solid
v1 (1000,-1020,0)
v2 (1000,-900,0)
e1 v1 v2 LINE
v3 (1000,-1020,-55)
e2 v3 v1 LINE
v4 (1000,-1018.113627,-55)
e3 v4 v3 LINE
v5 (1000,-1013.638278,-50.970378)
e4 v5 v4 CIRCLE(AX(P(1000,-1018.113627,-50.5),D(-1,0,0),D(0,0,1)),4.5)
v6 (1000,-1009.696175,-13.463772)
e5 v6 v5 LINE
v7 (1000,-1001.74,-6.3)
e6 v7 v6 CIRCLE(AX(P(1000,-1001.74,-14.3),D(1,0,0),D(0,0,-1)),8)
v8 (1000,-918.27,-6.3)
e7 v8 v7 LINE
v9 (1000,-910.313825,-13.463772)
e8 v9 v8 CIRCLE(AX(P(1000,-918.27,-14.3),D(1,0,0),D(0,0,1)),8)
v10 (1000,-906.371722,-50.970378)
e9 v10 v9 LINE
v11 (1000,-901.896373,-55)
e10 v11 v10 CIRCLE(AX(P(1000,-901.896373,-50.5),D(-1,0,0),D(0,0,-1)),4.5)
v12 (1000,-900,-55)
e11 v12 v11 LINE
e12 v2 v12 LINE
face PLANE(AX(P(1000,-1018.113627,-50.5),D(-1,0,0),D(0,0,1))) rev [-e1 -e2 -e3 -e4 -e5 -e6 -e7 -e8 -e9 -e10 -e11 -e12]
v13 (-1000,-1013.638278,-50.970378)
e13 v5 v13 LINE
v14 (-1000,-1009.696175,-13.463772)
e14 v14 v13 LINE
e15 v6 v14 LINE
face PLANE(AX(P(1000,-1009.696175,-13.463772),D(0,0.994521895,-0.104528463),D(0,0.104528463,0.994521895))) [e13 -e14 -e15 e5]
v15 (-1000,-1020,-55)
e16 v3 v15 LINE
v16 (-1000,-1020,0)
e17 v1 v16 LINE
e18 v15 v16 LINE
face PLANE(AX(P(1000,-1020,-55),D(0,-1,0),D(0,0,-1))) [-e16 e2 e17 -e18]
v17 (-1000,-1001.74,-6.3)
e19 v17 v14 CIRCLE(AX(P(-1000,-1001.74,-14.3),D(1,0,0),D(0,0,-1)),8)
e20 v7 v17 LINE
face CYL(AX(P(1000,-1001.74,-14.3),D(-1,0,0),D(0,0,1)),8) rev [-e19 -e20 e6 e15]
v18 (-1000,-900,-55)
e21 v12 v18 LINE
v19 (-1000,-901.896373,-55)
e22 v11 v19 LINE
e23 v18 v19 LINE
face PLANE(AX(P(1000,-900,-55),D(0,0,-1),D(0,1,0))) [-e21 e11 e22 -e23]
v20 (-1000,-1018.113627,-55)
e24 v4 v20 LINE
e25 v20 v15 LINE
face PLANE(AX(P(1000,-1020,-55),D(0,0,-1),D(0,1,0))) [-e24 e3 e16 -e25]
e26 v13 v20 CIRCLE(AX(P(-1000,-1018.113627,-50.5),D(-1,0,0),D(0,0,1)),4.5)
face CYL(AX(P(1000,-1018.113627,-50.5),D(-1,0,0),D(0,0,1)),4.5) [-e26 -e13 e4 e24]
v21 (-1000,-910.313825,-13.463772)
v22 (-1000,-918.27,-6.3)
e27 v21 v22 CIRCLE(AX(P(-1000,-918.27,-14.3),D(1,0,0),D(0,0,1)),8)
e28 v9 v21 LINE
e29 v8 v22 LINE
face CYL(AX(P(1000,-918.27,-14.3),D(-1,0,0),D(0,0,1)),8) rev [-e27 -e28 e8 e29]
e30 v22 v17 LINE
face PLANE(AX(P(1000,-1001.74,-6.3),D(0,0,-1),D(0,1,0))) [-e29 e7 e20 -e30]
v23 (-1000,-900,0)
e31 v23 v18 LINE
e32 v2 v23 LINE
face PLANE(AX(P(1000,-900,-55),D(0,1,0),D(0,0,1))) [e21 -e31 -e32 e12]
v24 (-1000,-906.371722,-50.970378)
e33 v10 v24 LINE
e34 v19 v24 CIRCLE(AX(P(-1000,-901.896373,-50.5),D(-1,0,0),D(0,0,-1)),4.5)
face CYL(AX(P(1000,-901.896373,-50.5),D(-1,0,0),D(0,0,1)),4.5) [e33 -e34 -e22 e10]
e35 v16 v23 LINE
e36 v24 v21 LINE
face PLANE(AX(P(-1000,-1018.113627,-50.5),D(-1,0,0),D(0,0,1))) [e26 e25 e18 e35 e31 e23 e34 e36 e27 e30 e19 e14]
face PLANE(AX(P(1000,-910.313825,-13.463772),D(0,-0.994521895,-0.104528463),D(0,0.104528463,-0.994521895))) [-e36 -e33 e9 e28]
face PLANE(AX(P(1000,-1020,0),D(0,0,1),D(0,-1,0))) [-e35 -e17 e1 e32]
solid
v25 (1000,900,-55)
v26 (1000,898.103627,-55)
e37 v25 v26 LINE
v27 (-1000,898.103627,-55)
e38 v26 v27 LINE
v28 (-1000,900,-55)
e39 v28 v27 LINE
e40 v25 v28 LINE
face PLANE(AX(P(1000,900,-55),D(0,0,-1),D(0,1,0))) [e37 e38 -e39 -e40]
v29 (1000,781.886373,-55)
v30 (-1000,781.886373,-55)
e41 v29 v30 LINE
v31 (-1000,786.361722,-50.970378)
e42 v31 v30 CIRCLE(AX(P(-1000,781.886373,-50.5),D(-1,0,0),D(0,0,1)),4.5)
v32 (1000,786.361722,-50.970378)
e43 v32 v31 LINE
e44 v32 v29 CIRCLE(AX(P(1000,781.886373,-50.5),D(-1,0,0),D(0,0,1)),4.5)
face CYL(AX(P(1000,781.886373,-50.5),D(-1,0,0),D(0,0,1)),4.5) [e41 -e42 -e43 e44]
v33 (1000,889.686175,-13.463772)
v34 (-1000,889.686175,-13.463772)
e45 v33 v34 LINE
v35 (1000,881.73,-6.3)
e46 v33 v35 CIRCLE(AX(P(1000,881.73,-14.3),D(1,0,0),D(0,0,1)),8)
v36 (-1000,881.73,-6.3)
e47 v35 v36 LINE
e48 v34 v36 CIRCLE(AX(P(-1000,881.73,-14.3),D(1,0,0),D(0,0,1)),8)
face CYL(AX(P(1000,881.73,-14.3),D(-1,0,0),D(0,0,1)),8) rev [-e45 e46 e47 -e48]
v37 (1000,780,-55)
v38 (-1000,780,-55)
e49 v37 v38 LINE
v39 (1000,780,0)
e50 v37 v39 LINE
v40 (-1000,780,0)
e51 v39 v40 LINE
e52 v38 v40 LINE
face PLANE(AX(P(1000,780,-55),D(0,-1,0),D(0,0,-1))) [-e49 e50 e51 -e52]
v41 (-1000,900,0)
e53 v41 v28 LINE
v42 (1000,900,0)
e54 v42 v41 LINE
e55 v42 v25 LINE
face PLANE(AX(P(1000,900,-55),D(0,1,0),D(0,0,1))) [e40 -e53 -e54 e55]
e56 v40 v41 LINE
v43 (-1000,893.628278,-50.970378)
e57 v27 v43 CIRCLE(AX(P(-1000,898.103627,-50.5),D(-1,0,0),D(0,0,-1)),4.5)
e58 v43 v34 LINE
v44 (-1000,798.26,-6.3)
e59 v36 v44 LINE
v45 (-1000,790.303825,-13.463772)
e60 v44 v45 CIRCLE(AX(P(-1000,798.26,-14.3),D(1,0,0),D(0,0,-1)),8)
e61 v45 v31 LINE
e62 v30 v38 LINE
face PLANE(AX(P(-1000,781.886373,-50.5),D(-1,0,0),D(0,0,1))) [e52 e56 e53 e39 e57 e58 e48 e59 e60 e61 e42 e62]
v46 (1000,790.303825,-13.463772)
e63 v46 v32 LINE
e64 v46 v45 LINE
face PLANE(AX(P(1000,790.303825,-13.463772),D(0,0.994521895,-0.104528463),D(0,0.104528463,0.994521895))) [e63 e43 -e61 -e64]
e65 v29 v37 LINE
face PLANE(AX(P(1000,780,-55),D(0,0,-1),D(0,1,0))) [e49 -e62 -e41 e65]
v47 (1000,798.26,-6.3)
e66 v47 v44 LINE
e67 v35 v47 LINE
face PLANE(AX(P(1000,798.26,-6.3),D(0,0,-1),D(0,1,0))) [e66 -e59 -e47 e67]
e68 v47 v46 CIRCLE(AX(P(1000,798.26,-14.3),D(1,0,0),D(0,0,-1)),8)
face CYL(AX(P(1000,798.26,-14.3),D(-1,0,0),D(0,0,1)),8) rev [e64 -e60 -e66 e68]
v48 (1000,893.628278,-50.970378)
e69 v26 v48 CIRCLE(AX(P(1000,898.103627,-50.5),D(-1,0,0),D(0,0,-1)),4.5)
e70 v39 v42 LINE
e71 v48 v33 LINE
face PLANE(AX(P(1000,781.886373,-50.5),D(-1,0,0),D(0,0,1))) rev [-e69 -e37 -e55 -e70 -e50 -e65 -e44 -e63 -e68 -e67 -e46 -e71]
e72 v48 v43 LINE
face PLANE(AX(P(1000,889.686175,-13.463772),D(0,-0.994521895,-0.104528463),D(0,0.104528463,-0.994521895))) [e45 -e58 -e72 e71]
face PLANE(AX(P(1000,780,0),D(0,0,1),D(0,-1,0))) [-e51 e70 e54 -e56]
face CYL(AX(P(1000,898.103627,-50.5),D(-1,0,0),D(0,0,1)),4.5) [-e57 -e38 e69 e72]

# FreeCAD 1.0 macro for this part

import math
import FreeCAD as App
import Part
import Sketcher
Q = App.Units.Quantity

doc = App.newDocument("Part")
body = doc.addObject("PartDesign::Body", "Body")

# Sketch on YZ plane
sketch1 = body.newObject("Sketcher::SketchObject", "Sketch")
sketch1.AttachmentSupport = (doc.getObject("YZ_Plane"), [""])
sketch1.MapMode = "FlatFace"
sketch1.AttachmentOffset = App.Placement(App.Vector(0, 0, -1000), App.Rotation())
sketch1.addGeometry([
    Part.LineSegment(App.Vector(780, -55, 0), App.Vector(780, 0, 0)),  # 0
    Part.LineSegment(App.Vector(780, 0, 0), App.Vector(900, 0, 0)),  # 1
    Part.LineSegment(App.Vector(900, 0, 0), App.Vector(900, -55, 0)),  # 2
    Part.LineSegment(App.Vector(900, -55, 0), App.Vector(898.103627, -55, 0)),  # 3
    Part.ArcOfCircle(Part.Circle(App.Vector(898.103627, -50.5, 0), App.Vector(0, 0, 1), 4.5), math.radians(-174), math.radians(-90)),  # 4
    Part.LineSegment(App.Vector(893.628278, -50.970378, 0), App.Vector(889.686175, -13.463772, 0)),  # 5
    Part.ArcOfCircle(Part.Circle(App.Vector(881.73, -14.3, 0), App.Vector(0, 0, 1), 8), math.radians(6), math.radians(90)),  # 6
    Part.LineSegment(App.Vector(881.73, -6.3, 0), App.Vector(798.26, -6.3, 0)),  # 7
    Part.ArcOfCircle(Part.Circle(App.Vector(798.26, -14.3, 0), App.Vector(0, 0, 1), 8), math.radians(90), math.radians(174)),  # 8
    Part.LineSegment(App.Vector(790.303825, -13.463772, 0), App.Vector(786.361722, -50.970378, 0)),  # 9
    Part.ArcOfCircle(Part.Circle(App.Vector(781.886373, -50.5, 0), App.Vector(0, 0, 1), 4.5), math.radians(-90), math.radians(-6)),  # 10
    Part.LineSegment(App.Vector(781.886373, -55, 0), App.Vector(780, -55, 0)),  # 11
], False)
sketch1.addConstraint([
    Sketcher.Constraint("Coincident", 0, 2, 1, 1),
    Sketcher.Constraint("Coincident", 1, 2, 2, 1),
    Sketcher.Constraint("Coincident", 2, 2, 3, 1),
    Sketcher.Constraint("Tangent", 3, 2, 4, 2),
    Sketcher.Constraint("Tangent", 4, 1, 5, 1),
    Sketcher.Constraint("Tangent", 5, 2, 6, 1),
    Sketcher.Constraint("Tangent", 6, 2, 7, 1),
    Sketcher.Constraint("Tangent", 7, 2, 8, 1),
    Sketcher.Constraint("Tangent", 8, 2, 9, 1),
    Sketcher.Constraint("Tangent", 9, 2, 10, 2),
    Sketcher.Constraint("Tangent", 10, 1, 11, 1),
    Sketcher.Constraint("Coincident", 11, 2, 0, 1),
    Sketcher.Constraint("Vertical", 0),
    Sketcher.Constraint("Horizontal", 1),
    Sketcher.Constraint("Vertical", 2),
    Sketcher.Constraint("Horizontal", 3),
    Sketcher.Constraint("Horizontal", 7),
    Sketcher.Constraint("Horizontal", 11),
    Sketcher.Constraint("Equal", 6, 8),
    Sketcher.Constraint("Equal", 4, 10),
    Sketcher.Constraint("PointOnObject", 0, 2, -1),
    Sketcher.Constraint("Horizontal", 4, 3, 10, 3),
    Sketcher.Constraint("Horizontal", 5, 2, 8, 2),
    Sketcher.Constraint("Radius", 6, Q("8 mm")),
    Sketcher.Constraint("Radius", 4, Q("4.5 mm")),
    Sketcher.Constraint("DistanceX", 1, 1, 1, 2, Q("120 mm")),
    Sketcher.Constraint("DistanceY", 0, 1, 0, 2, Q("55 mm")),
    Sketcher.Constraint("Angle", 5, Q("96 deg")),
    Sketcher.Constraint("DistanceX", -1, 1, 0, 2, Q("780 mm")),
    Sketcher.Constraint("DistanceX", 7, 2, 7, 1, Q("83.47 mm")),
    Sketcher.Constraint("DistanceY", 6, 3, -1, 1, Q("14.3 mm")),
    Sketcher.Constraint("DistanceX", -1, 1, 6, 3, Q("881.73 mm")),
])
pad1 = body.newObject("PartDesign::Pad", "Pad")
pad1.Profile = sketch1
pad1.Length = 2000
body2 = doc.addObject("PartDesign::Body", "Body001")

# Sketch on YZ plane
sketch2 = body2.newObject("Sketcher::SketchObject", "Sketch001")
sketch2.AttachmentSupport = (doc.getObject("YZ_Plane001"), [""])
sketch2.MapMode = "FlatFace"
sketch2.AttachmentOffset = App.Placement(App.Vector(0, 0, 1000), App.Rotation())
sketch2.addGeometry([
    Part.LineSegment(App.Vector(-1020, -55, 0), App.Vector(-1020, 0, 0)),  # 0
    Part.LineSegment(App.Vector(-1020, 0, 0), App.Vector(-900, 0, 0)),  # 1
    Part.LineSegment(App.Vector(-900, 0, 0), App.Vector(-900, -55, 0)),  # 2
    Part.LineSegment(App.Vector(-900, -55, 0), App.Vector(-901.896373, -55, 0)),  # 3
    Part.ArcOfCircle(Part.Circle(App.Vector(-901.896373, -50.5, 0), App.Vector(0, 0, 1), 4.5), math.radians(-174), math.radians(-90)),  # 4
    Part.LineSegment(App.Vector(-906.371722, -50.970378, 0), App.Vector(-910.313825, -13.463772, 0)),  # 5
    Part.ArcOfCircle(Part.Circle(App.Vector(-918.27, -14.3, 0), App.Vector(0, 0, 1), 8), math.radians(6), math.radians(90)),  # 6
    Part.LineSegment(App.Vector(-918.27, -6.3, 0), App.Vector(-1001.74, -6.3, 0)),  # 7
    Part.ArcOfCircle(Part.Circle(App.Vector(-1001.74, -14.3, 0), App.Vector(0, 0, 1), 8), math.radians(90), math.radians(174)),  # 8
    Part.LineSegment(App.Vector(-1009.696175, -13.463772, 0), App.Vector(-1013.638278, -50.970378, 0)),  # 9
    Part.ArcOfCircle(Part.Circle(App.Vector(-1018.113627, -50.5, 0), App.Vector(0, 0, 1), 4.5), math.radians(-90), math.radians(-6)),  # 10
    Part.LineSegment(App.Vector(-1018.113627, -55, 0), App.Vector(-1020, -55, 0)),  # 11
], False)
sketch2.addConstraint([
    Sketcher.Constraint("Coincident", 0, 2, 1, 1),
    Sketcher.Constraint("Coincident", 1, 2, 2, 1),
    Sketcher.Constraint("Coincident", 2, 2, 3, 1),
    Sketcher.Constraint("Tangent", 3, 2, 4, 2),
    Sketcher.Constraint("Tangent", 4, 1, 5, 1),
    Sketcher.Constraint("Tangent", 5, 2, 6, 1),
    Sketcher.Constraint("Tangent", 6, 2, 7, 1),
    Sketcher.Constraint("Tangent", 7, 2, 8, 1),
    Sketcher.Constraint("Tangent", 8, 2, 9, 1),
    Sketcher.Constraint("Tangent", 9, 2, 10, 2),
    Sketcher.Constraint("Tangent", 10, 1, 11, 1),
    Sketcher.Constraint("Coincident", 11, 2, 0, 1),
    Sketcher.Constraint("Vertical", 0),
    Sketcher.Constraint("Horizontal", 1),
    Sketcher.Constraint("Vertical", 2),
    Sketcher.Constraint("Horizontal", 3),
    Sketcher.Constraint("Horizontal", 7),
    Sketcher.Constraint("Horizontal", 11),
    Sketcher.Constraint("Equal", 6, 8),
    Sketcher.Constraint("Equal", 4, 10),
    Sketcher.Constraint("PointOnObject", 0, 2, -1),
    Sketcher.Constraint("Horizontal", 4, 3, 10, 3),
    Sketcher.Constraint("Horizontal", 5, 2, 8, 2),
    Sketcher.Constraint("Radius", 6, Q("8 mm")),
    Sketcher.Constraint("Radius", 4, Q("4.5 mm")),
    Sketcher.Constraint("DistanceX", 1, 1, 1, 2, Q("120 mm")),
    Sketcher.Constraint("DistanceY", 0, 1, 0, 2, Q("55 mm")),
    Sketcher.Constraint("Angle", 5, Q("96 deg")),
    Sketcher.Constraint("DistanceX", 0, 2, -1, 1, Q("1020 mm")),
    Sketcher.Constraint("DistanceX", 7, 2, 7, 1, Q("83.47 mm")),
    Sketcher.Constraint("DistanceY", 6, 3, -1, 1, Q("14.3 mm")),
    Sketcher.Constraint("DistanceX", 6, 3, -1, 1, Q("918.27 mm")),
])
pad2 = body2.newObject("PartDesign::Pad", "Pad001")
pad2.Profile = sketch2
pad2.Length = 2000
pad2.Reversed = True

doc.recompute()
